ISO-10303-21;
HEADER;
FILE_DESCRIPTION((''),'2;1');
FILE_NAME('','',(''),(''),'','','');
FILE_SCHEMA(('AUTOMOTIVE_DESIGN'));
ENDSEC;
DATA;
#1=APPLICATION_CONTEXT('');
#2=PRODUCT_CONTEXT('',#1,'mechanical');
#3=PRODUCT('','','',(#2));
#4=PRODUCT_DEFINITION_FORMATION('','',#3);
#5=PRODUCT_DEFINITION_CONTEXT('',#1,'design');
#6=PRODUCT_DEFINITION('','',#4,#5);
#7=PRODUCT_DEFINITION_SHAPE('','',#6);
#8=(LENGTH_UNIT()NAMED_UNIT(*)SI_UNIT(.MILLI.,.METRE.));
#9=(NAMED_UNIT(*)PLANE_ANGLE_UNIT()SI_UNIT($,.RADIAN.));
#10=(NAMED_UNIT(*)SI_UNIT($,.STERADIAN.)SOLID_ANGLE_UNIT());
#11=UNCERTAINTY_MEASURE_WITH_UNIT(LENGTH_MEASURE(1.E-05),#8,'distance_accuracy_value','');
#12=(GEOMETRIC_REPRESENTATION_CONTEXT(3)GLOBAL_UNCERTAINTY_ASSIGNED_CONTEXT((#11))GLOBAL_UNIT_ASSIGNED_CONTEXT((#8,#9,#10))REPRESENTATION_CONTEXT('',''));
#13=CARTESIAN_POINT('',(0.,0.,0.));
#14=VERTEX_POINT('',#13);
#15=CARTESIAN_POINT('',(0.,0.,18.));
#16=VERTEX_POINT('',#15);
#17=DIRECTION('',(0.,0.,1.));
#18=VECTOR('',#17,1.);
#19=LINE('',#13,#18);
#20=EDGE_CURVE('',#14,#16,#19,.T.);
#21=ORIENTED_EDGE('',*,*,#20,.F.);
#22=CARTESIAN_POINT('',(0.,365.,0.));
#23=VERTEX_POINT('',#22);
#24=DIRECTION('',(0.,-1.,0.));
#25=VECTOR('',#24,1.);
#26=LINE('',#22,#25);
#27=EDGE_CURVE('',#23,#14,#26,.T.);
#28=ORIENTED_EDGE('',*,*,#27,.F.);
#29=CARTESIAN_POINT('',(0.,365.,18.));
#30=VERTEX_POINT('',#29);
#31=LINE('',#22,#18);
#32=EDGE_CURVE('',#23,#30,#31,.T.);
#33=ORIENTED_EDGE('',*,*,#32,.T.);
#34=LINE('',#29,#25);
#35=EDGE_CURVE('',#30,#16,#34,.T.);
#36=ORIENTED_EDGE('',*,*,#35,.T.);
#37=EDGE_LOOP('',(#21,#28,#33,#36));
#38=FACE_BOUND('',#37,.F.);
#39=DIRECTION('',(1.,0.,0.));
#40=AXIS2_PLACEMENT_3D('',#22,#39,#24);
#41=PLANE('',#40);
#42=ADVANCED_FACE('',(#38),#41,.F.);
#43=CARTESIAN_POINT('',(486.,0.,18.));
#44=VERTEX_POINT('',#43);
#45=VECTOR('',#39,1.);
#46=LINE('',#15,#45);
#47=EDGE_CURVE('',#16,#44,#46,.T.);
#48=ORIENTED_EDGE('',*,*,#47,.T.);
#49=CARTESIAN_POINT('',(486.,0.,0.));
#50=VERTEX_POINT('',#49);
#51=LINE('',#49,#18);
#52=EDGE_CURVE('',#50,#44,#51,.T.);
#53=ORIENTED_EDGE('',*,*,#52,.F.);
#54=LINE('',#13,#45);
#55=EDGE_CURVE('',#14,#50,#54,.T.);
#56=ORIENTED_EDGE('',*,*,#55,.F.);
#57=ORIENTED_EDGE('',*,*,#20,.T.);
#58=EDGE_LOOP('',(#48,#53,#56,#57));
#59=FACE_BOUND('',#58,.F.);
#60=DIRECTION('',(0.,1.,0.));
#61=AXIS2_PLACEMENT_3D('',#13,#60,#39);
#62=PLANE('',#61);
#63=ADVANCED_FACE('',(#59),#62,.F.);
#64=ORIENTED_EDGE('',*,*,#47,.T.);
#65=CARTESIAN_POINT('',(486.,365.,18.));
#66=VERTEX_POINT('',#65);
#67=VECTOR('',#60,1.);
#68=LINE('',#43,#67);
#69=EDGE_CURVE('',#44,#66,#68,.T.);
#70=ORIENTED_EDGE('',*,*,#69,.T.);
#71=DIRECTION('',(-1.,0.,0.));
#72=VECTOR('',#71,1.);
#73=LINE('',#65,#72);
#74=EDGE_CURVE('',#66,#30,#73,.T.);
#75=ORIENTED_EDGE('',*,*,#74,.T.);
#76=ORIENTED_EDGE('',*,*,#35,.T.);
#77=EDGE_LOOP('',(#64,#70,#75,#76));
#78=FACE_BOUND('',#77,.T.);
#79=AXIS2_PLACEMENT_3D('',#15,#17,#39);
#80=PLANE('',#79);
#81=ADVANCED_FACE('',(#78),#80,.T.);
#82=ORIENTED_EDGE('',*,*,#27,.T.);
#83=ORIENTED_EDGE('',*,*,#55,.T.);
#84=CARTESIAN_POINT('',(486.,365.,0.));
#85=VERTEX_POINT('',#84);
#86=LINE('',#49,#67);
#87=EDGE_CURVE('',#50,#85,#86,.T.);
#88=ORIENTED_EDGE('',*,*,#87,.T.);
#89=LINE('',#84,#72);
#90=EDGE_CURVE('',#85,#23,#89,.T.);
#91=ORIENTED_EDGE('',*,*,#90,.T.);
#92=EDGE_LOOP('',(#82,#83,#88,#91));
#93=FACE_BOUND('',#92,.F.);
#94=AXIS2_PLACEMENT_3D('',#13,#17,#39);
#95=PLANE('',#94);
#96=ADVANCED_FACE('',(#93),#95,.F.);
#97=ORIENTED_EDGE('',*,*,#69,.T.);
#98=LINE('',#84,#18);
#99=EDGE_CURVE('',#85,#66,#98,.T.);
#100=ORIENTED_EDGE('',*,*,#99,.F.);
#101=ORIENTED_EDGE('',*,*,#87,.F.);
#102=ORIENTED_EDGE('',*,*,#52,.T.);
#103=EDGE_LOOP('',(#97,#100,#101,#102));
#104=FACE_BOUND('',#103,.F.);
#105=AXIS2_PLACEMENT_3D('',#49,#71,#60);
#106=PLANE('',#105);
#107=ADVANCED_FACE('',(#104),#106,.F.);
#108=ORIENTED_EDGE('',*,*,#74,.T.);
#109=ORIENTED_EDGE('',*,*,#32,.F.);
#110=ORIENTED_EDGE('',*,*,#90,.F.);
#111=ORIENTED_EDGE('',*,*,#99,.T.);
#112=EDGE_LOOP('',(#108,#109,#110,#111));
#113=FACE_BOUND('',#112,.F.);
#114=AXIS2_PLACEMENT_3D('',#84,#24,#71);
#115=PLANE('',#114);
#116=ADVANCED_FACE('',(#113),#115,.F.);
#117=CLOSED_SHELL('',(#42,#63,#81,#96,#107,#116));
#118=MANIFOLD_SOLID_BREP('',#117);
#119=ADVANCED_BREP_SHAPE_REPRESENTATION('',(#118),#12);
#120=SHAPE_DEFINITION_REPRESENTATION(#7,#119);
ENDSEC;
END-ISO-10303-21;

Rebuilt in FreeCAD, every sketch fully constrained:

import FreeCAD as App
import Part
import Sketcher

doc = App.newDocument("Part")
body = doc.addObject("PartDesign::Body", "Body")

sketch1 = doc.addObject("Sketcher::SketchObject", "Sketch")
body.addObject(sketch1)
sketch1.AttachmentSupport = (doc.XY_Plane, [""])
sketch1.MapMode = "FlatFace"
sketch1.addGeometry([
    Part.LineSegment(App.Vector(0, 365, 0), App.Vector(0, 0, 0)),
    Part.LineSegment(App.Vector(0, 0, 0), App.Vector(486, 0, 0)),
    Part.LineSegment(App.Vector(486, 0, 0), App.Vector(486, 365, 0)),
    Part.LineSegment(App.Vector(486, 365, 0), App.Vector(0, 365, 0)),
], False)
sketch1.addConstraint([
    Sketcher.Constraint("Coincident", 0, 2, 1, 1),
    Sketcher.Constraint("Coincident", 1, 2, 2, 1),
    Sketcher.Constraint("Coincident", 2, 2, 3, 1),
    Sketcher.Constraint("Coincident", 3, 2, 0, 1),
    Sketcher.Constraint("Vertical", 0),
    Sketcher.Constraint("Horizontal", 1),
    Sketcher.Constraint("Vertical", 2),
    Sketcher.Constraint("Horizontal", 3),
    Sketcher.Constraint("Coincident", 0, 2, -1, 1),
    Sketcher.Constraint("DistanceX", 1, 1, 1, 2, 486.0),
    Sketcher.Constraint("DistanceY", 0, 2, 0, 1, 365.0),
])
pad1 = doc.addObject("PartDesign::Pad", "Pad")
body.addObject(pad1)
pad1.Profile = sketch1
pad1.Length = 18

doc.recompute()
